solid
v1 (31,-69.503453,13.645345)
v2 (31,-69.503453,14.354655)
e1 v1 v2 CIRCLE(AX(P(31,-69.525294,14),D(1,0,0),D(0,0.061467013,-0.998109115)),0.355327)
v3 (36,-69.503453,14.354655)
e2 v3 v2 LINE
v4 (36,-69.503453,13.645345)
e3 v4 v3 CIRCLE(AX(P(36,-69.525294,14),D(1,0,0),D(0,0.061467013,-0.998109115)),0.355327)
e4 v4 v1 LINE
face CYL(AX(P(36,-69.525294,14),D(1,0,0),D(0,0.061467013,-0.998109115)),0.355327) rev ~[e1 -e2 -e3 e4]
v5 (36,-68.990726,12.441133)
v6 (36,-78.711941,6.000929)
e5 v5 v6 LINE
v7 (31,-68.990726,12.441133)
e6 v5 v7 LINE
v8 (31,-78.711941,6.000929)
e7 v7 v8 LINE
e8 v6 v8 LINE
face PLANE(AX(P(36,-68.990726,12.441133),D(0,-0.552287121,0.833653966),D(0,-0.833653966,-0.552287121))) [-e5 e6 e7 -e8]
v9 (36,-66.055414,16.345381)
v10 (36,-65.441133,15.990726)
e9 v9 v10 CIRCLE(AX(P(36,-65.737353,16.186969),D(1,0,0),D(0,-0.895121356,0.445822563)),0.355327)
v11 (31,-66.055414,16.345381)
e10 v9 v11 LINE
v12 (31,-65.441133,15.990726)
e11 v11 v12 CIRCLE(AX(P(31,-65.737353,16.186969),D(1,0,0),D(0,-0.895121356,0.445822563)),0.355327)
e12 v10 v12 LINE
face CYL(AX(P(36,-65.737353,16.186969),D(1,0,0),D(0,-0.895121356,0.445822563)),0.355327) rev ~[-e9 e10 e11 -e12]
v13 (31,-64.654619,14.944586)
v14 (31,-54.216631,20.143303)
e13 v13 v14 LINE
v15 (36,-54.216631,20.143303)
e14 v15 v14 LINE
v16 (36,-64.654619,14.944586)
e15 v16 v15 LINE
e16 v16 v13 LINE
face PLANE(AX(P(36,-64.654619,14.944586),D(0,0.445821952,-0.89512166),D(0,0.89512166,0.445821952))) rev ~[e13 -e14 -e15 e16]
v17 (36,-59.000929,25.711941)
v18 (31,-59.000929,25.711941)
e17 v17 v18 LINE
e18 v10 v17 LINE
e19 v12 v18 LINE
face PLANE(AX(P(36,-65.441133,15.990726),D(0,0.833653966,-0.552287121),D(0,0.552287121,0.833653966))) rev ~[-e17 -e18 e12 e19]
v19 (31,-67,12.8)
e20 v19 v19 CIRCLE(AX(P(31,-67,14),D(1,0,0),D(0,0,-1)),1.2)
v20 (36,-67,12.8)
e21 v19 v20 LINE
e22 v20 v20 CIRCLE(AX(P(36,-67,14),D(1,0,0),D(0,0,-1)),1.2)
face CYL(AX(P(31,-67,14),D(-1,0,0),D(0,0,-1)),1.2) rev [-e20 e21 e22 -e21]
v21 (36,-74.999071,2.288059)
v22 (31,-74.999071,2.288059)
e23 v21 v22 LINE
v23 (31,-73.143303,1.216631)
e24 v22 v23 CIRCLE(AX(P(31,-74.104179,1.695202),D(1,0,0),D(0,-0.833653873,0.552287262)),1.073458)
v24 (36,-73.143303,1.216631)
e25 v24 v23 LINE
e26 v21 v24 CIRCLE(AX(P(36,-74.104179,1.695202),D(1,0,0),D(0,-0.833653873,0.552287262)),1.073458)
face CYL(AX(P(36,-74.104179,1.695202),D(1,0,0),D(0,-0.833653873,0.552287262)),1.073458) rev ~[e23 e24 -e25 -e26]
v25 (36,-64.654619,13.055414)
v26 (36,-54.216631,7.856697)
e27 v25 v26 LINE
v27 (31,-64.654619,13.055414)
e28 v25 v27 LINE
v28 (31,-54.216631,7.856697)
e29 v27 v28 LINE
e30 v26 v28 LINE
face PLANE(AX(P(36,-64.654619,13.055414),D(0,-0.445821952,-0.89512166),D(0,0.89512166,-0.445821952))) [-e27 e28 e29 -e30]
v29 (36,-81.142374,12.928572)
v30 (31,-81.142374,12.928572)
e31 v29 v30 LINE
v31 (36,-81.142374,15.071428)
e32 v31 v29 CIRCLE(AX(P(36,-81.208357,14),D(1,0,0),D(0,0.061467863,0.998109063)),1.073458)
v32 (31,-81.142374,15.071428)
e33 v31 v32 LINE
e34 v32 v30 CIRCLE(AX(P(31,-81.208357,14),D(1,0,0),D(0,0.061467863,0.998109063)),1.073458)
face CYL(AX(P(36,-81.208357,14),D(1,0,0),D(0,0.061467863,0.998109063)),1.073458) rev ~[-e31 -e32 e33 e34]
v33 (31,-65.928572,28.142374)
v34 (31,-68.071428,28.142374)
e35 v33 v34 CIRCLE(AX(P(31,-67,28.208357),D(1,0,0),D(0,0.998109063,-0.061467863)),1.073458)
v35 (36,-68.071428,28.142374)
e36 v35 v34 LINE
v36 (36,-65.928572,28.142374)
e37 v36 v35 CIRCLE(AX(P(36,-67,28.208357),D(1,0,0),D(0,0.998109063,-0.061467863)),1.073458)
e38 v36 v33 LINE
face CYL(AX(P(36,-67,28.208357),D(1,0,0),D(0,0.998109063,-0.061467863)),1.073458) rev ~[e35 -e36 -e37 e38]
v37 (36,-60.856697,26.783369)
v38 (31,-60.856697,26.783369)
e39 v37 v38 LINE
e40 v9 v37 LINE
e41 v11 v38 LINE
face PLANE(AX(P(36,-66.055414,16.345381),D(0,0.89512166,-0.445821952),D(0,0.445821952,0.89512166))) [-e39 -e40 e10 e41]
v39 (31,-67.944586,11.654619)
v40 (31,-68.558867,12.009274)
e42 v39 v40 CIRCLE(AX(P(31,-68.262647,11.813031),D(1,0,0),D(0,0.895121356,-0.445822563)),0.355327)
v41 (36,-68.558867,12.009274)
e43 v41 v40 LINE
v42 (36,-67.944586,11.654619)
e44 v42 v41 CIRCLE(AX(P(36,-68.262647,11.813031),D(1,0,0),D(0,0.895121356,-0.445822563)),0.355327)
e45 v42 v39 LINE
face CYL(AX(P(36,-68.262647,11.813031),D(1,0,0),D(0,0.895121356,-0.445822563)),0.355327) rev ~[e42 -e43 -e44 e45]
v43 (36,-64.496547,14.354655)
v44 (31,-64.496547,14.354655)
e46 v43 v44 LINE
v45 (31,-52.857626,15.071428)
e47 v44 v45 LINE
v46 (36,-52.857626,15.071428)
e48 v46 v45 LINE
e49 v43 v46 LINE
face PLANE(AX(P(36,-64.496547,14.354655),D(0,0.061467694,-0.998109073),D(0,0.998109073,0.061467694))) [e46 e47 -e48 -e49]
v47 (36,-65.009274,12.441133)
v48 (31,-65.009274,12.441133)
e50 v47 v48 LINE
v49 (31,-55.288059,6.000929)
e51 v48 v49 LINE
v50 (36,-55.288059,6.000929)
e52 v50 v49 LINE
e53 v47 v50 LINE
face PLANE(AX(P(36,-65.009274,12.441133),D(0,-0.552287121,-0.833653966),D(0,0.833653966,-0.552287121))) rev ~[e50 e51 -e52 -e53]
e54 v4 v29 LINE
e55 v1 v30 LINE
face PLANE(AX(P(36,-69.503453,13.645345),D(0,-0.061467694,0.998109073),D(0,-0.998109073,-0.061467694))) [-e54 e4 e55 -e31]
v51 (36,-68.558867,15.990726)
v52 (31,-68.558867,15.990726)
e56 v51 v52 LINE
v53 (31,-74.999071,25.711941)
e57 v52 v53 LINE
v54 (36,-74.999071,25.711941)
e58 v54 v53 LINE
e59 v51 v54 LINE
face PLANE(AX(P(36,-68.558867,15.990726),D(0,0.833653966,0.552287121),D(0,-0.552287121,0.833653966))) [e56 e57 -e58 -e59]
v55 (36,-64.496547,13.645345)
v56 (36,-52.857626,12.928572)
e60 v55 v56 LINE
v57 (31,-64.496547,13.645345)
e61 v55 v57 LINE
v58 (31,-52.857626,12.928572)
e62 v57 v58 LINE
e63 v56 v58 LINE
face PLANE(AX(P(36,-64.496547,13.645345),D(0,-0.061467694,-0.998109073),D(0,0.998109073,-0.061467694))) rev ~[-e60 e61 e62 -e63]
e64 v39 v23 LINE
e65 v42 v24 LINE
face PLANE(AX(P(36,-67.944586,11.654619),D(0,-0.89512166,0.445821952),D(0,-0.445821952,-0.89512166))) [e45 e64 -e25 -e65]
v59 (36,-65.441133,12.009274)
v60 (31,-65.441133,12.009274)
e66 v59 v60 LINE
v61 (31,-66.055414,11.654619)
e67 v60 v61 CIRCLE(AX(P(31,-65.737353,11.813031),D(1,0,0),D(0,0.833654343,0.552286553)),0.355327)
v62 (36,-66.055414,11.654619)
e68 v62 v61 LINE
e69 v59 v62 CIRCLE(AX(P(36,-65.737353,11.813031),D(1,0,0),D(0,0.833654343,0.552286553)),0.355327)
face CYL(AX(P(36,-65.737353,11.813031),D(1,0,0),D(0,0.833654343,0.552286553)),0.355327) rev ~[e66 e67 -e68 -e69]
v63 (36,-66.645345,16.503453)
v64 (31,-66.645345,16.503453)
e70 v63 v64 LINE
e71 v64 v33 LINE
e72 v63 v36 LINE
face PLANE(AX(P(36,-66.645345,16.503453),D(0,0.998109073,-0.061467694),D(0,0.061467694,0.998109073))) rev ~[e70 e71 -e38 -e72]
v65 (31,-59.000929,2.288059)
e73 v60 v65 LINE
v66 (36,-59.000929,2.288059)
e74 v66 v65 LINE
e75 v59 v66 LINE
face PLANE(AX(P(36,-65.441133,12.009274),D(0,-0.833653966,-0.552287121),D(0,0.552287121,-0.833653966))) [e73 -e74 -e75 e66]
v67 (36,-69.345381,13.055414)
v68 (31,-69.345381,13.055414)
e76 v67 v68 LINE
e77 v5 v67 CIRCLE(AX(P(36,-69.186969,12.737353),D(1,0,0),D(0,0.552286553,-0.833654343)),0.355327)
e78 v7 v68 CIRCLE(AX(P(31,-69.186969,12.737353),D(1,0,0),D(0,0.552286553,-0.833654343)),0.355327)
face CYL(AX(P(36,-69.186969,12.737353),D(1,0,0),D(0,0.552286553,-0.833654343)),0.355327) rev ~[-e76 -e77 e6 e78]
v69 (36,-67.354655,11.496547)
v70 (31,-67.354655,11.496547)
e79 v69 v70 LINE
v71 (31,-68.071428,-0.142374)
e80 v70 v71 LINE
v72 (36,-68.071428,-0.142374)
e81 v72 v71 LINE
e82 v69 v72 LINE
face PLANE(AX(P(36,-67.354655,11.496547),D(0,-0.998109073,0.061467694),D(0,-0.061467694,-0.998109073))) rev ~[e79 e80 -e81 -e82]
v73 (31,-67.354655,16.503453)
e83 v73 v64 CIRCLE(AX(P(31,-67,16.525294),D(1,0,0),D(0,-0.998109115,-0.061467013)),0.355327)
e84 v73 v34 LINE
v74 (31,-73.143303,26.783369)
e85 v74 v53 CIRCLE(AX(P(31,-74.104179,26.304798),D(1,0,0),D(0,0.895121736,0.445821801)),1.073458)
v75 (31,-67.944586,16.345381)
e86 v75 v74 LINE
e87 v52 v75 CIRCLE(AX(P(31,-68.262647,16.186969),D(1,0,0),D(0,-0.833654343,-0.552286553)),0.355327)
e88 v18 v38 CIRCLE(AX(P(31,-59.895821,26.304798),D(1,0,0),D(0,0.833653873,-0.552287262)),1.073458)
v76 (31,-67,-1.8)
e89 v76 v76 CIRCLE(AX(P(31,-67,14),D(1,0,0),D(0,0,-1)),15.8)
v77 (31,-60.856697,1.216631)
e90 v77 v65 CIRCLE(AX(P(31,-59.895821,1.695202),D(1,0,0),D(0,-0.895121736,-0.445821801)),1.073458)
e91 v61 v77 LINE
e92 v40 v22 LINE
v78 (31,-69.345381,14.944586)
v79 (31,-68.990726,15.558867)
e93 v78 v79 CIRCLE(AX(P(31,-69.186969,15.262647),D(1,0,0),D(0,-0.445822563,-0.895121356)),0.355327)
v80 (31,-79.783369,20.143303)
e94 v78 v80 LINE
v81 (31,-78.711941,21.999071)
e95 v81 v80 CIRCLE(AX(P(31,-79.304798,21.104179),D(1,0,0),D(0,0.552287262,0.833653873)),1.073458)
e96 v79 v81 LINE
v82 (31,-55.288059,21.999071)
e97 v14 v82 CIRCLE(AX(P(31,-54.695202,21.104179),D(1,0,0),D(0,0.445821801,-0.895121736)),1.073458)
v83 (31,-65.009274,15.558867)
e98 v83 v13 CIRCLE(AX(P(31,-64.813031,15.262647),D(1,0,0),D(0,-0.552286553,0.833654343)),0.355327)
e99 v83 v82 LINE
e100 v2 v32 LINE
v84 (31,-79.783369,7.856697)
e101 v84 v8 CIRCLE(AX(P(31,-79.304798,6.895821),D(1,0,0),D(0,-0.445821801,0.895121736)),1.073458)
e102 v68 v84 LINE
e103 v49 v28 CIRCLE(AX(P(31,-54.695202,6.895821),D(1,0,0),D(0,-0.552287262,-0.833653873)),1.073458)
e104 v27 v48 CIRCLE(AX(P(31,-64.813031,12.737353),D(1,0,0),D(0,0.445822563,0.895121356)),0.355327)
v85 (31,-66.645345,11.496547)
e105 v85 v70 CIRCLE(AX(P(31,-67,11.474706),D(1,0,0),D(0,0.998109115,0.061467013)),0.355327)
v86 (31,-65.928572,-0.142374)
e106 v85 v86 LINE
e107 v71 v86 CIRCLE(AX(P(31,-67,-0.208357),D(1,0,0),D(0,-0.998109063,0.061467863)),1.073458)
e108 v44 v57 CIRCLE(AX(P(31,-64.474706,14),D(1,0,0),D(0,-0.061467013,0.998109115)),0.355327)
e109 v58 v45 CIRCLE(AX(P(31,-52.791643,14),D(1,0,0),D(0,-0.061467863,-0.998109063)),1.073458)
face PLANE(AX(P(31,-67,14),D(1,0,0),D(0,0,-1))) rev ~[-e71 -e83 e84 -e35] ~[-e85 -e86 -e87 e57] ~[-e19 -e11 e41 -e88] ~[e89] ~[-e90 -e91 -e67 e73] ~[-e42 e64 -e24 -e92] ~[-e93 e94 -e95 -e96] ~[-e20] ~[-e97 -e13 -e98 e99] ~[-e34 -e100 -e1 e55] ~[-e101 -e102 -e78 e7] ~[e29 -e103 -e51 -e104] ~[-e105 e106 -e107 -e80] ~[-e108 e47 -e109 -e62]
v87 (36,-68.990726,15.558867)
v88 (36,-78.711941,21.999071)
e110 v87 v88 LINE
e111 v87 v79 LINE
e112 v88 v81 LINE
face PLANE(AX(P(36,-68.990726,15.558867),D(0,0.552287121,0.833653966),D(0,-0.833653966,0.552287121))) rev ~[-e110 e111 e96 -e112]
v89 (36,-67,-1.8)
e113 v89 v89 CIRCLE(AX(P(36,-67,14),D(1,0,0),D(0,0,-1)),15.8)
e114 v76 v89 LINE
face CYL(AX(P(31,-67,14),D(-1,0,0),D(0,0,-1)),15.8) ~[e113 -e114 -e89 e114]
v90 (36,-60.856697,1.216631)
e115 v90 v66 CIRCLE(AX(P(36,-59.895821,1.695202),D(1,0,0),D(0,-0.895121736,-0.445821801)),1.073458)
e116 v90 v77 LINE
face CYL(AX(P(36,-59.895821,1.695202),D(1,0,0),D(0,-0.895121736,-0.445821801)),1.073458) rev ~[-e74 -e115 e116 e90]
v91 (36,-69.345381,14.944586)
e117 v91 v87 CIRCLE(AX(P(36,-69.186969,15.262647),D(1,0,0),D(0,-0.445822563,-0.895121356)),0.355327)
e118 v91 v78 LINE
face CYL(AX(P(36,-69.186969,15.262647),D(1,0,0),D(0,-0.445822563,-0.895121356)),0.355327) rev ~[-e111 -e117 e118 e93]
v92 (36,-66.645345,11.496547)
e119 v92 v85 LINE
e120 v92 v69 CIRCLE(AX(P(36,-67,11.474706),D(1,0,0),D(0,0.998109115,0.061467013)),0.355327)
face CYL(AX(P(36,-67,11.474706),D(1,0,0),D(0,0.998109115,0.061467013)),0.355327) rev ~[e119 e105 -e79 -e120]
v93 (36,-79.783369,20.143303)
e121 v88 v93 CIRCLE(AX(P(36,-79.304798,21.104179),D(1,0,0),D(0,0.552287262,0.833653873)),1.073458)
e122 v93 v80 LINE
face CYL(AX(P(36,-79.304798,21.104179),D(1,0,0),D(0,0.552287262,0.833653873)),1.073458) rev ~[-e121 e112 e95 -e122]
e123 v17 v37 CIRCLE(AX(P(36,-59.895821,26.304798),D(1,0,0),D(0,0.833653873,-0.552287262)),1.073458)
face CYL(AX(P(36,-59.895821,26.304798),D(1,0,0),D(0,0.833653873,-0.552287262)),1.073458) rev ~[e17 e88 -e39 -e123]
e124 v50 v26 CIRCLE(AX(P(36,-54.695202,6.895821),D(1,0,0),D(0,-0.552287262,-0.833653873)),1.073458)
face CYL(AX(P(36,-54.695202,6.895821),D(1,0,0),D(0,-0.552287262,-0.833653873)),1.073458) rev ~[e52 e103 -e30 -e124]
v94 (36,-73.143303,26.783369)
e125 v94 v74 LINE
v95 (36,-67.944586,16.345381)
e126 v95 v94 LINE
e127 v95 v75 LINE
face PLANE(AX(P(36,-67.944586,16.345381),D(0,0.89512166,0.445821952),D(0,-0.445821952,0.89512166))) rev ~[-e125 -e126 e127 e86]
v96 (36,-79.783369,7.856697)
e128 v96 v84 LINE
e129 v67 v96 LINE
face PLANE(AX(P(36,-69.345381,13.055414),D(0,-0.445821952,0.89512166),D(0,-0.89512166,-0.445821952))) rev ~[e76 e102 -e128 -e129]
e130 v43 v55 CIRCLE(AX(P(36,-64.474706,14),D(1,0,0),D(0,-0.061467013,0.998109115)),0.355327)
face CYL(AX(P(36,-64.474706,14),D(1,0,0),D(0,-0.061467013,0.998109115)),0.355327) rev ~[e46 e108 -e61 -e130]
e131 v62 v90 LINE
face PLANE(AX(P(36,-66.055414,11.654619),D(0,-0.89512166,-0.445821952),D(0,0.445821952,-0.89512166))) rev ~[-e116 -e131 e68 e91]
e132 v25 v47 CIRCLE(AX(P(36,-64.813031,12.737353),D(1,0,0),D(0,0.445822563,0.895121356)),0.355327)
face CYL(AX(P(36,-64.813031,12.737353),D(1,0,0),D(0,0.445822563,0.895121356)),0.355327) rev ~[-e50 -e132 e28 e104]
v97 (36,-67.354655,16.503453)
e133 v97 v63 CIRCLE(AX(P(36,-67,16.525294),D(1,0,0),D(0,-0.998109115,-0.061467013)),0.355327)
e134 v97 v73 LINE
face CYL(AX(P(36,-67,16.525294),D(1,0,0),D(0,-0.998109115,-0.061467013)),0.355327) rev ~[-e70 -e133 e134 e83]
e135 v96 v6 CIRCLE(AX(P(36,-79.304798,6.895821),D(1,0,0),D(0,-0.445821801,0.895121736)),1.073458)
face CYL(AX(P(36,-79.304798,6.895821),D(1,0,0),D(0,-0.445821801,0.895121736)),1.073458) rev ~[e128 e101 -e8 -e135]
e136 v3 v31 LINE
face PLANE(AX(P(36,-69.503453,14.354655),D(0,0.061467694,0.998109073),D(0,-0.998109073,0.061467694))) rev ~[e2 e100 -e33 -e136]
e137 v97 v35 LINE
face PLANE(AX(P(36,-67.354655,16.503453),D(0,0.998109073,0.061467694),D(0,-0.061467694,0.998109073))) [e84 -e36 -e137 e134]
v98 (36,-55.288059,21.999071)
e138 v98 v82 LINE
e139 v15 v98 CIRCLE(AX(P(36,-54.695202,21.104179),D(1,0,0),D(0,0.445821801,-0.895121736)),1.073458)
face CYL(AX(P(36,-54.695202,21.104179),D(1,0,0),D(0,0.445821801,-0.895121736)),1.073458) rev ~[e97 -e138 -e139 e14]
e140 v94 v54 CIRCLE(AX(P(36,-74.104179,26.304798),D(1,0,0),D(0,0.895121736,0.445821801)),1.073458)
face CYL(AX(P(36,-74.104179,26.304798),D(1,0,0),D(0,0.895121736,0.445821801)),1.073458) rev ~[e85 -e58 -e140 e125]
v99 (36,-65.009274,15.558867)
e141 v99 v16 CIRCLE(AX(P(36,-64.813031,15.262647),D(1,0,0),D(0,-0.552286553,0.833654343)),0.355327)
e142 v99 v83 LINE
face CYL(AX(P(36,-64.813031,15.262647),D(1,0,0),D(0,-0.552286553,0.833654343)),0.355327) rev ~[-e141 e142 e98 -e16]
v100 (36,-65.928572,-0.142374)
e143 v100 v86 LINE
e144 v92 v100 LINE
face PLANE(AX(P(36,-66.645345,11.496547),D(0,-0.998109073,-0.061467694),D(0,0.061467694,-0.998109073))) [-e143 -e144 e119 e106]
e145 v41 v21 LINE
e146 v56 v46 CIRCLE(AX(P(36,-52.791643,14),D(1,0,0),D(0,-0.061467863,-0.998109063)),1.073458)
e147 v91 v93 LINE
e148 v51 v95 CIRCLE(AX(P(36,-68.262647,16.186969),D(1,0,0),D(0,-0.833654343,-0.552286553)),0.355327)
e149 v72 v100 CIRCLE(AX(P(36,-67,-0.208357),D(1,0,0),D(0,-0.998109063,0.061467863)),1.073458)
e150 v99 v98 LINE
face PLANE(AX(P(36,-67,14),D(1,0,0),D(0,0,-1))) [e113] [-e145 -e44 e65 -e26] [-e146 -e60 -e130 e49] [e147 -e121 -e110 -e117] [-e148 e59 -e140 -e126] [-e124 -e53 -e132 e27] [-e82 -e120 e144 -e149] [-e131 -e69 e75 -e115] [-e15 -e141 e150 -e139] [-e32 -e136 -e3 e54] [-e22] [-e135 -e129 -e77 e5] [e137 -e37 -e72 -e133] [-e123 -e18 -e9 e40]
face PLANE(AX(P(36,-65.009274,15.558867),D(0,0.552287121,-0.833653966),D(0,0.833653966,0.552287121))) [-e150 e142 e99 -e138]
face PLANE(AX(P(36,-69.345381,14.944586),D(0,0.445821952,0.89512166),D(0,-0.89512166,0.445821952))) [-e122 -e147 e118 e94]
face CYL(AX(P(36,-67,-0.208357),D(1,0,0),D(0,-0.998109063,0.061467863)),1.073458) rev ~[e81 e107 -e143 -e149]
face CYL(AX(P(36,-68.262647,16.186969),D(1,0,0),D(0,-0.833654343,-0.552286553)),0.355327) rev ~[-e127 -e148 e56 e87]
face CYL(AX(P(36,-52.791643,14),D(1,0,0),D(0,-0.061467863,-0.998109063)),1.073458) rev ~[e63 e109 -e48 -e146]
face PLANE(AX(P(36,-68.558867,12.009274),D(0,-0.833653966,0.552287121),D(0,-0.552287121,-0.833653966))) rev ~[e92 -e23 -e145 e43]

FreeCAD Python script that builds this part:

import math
import FreeCAD as App
import Part
import Sketcher

V = App.Vector

doc = App.newDocument("Part")
body = doc.addObject("PartDesign::Body", "Body")

# Sketch on XY plane
sketch1 = body.newObject("Sketcher::SketchObject", "Sketch")
sketch1.AttachmentSupport = (doc.getObject("XY_Plane"), [""])
sketch1.MapMode = "FlatFace"
sketch1.addGeometry(Part.Circle(V(0, 0, 0), V(0, 0, 1), 15.8), False)
sketch1.addGeometry(Part.Circle(V(0, 0, 0), V(0, 0, 1), 1.2), False)
sketch1.addConstraint(Sketcher.Constraint("Coincident", 0, 3, -1, 1))
sketch1.addConstraint(Sketcher.Constraint("Coincident", 1, 3, -1, 1))
sketch1.addConstraint(Sketcher.Constraint("Diameter", 0, 31.6))
sketch1.addConstraint(Sketcher.Constraint("Diameter", 1, 2.4))
pad1 = body.newObject("PartDesign::Pad", "Pad")
pad1.Profile = sketch1
pad1.Length = 5

# Sketch on XY plane
sketch2 = body.newObject("Sketcher::SketchObject", "Sketch001")
sketch2.AttachmentSupport = (doc.getObject("XY_Plane"), [""])
sketch2.MapMode = "FlatFace"
sketch2.AttachmentOffset = App.Placement(V(0, 0, 5), App.Rotation())
sketch2.addGeometry(Part.ArcOfCircle(Part.Circle(V(0, 2.525294, 0), V(0, 0, 1), 0.355327), math.radians(-176.475978), math.radians(-3.524022)), False)
sketch2.addGeometry(Part.LineSegment(V(0.354655, 2.503453, 0), V(1.071428, 14.142374, 0)), False)
sketch2.addGeometry(Part.ArcOfCircle(Part.Circle(V(0, 14.208357, 0), V(0, 0, 1), 1.073458), math.radians(-3.524071), math.radians(183.524071)), False)
sketch2.addGeometry(Part.LineSegment(V(-1.071428, 14.142374, 0), V(-0.354655, 2.503453, 0)), False)
sketch2.addConstraint(Sketcher.Constraint("Tangent", 0, 2, 1, 1))
sketch2.addConstraint(Sketcher.Constraint("Tangent", 1, 2, 2, 1))
sketch2.addConstraint(Sketcher.Constraint("Tangent", 2, 2, 3, 1))
sketch2.addConstraint(Sketcher.Constraint("Tangent", 3, 2, 0, 1))
sketch2.addConstraint(Sketcher.Constraint("Symmetric", 1, 2, 2, 2, -2))
sketch2.addConstraint(Sketcher.Constraint("Radius", 0, 0.355327))
sketch2.addConstraint(Sketcher.Constraint("Radius", 2, 1.073458))
sketch2.addConstraint(Sketcher.Constraint("Distance", 1, 11.660971))
sketch2.addConstraint(Sketcher.Constraint("DistanceY", -1, 1, 0, 3, 2.525294))
pocket1 = body.newObject("PartDesign::Pocket", "Pocket")
pocket1.Profile = sketch2
pocket1.Length = 5
doc.recompute()

polarpattern = body.newObject("PartDesign::PolarPattern", "PolarPattern")
polarpattern.Originals = [pocket1]
polarpattern.Axis = (doc.getObject("Z_Axis"), [""])
polarpattern.Angle = 360
polarpattern.Occurrences = 12
body.Tip = polarpattern
body2 = doc.addObject("PartDesign::Body", "Body001")
doc.recompute()

body.Placement = App.Placement(V(31, -67, 14), App.Rotation(V(0, 1, 0), 90))
boolean = body2.newObject("PartDesign::Boolean", "Boolean")
boolean.Type = "Fuse"
boolean.addObjects([body])

doc.recompute()
